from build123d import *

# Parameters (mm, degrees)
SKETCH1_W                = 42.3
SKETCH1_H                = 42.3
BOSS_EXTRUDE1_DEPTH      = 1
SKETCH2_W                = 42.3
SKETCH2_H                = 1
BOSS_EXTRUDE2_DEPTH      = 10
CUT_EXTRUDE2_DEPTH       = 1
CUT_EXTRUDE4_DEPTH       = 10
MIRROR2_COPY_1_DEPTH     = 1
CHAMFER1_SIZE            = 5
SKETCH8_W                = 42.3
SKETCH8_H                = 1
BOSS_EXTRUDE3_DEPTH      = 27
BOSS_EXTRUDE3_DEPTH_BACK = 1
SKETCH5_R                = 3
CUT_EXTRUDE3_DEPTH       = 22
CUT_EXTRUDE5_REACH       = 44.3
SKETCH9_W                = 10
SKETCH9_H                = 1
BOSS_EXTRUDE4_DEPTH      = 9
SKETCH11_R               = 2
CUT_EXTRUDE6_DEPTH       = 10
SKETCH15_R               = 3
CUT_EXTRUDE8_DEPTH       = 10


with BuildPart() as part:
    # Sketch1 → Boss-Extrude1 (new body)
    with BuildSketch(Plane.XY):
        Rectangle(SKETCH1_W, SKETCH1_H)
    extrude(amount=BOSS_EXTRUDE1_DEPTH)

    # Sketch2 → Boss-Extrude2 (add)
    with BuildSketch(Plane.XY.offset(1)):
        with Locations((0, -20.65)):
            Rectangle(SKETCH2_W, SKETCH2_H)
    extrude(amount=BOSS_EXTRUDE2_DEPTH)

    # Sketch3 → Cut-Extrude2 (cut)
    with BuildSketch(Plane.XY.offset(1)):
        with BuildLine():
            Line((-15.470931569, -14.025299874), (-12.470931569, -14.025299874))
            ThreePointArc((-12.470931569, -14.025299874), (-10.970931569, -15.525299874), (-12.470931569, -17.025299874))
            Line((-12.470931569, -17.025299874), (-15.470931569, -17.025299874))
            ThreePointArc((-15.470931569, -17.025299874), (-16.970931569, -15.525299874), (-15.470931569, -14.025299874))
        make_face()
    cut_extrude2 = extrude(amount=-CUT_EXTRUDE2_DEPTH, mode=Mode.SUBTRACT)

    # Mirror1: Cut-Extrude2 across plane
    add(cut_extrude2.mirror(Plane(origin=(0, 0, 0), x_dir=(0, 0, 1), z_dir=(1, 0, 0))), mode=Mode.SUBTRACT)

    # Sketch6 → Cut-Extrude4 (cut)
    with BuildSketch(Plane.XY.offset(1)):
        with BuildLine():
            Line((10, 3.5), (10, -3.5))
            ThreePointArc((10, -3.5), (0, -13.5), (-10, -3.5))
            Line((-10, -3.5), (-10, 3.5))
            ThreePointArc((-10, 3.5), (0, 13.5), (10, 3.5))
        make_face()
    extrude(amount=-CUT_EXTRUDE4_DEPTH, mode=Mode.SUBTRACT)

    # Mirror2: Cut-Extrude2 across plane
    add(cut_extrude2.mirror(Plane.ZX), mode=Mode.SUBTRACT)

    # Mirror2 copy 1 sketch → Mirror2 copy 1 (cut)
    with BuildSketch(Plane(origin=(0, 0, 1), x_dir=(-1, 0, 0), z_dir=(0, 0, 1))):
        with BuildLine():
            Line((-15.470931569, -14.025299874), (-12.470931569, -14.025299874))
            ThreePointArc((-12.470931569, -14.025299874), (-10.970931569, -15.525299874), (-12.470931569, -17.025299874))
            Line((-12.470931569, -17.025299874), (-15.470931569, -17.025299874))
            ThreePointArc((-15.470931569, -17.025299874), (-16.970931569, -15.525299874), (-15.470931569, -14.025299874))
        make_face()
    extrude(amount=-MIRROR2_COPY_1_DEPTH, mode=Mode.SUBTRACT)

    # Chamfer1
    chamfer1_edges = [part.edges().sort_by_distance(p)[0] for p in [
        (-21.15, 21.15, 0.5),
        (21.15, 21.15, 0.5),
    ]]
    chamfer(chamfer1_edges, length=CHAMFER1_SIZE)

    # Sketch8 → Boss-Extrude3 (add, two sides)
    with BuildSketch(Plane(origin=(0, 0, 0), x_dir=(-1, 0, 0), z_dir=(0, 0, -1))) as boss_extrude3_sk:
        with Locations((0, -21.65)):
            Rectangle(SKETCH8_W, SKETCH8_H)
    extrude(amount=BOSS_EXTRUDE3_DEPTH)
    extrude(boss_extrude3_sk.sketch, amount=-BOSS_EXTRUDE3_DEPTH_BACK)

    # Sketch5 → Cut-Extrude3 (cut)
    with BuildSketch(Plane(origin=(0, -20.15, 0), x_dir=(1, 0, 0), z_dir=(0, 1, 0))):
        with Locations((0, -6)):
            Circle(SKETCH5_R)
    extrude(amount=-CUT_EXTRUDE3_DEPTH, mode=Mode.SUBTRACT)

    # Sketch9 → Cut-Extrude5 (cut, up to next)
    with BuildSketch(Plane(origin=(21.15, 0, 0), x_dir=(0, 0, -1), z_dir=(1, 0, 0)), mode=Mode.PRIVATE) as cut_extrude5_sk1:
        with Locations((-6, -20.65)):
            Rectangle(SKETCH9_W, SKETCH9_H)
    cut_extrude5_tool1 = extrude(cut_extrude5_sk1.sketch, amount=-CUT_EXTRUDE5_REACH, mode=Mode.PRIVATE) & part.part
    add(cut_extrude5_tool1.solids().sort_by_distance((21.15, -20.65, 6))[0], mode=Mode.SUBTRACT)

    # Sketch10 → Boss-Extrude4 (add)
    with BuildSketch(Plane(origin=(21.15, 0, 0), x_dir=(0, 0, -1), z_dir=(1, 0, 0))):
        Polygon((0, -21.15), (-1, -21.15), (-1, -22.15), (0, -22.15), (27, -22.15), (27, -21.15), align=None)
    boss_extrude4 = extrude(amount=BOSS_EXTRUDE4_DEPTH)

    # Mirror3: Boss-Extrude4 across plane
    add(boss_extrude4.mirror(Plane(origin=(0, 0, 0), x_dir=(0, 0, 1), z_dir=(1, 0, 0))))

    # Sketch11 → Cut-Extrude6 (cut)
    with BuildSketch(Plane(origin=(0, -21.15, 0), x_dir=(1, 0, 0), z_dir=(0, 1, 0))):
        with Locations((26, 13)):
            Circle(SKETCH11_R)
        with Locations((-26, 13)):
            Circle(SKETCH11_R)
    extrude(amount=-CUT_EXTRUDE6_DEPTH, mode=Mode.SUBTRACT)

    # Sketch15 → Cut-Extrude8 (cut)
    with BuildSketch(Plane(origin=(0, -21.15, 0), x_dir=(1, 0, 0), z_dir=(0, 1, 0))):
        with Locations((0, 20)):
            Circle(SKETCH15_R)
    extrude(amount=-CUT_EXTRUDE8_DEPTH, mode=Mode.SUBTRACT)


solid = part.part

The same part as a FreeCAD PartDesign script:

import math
import FreeCAD as App
import Part
import Sketcher

V = App.Vector
Q = App.Units.Quantity


def edges_at(feature, points):
    """Names of the edges that pass closest to the given points."""
    edges = feature.Shape.Edges
    near = lambda p: min(range(len(edges)), key=lambda i: edges[i].distToShape(Part.Vertex(*p))[0])
    return sorted({f"Edge{near(p) + 1}" for p in points})

doc = App.newDocument("Part")
params = doc.addObject("Spreadsheet::Sheet", "Params")
for row, (alias, value) in enumerate([
    ("sketch1_width", "42.3 mm"),
    ("pad1_length", "1 mm"),
    ("sketch2_height", "1 mm"),
    ("sketch2_width", "42.3 mm"),
    ("pad2_length", "10 mm"),
    ("sketch3_radius", "1.5 mm"),
    ("sketch3_width", "3 mm"),
    ("pocket1_length", "1 mm"),
    ("sketch4_radius", "10 mm"),
    ("sketch4_height", "7 mm"),
    ("pocket2_length", "10 mm"),
    ("sketch5_radius", "1.5 mm"),
    ("sketch5_width", "3 mm"),
    ("pocket3_length", "1 mm"),
    ("chamfer_size", "5 mm"),
    ("sketch6_height", "1 mm"),
    ("sketch6_width", "42.3 mm"),
    ("pad3_length", "27 mm"),
    ("pad3_length2", "1 mm"),
    ("sketch7_diameter", "6 mm"),
    ("pocket4_length", "22 mm"),
    ("sketch8_width", "1 mm"),
    ("sketch8_height", "10 mm"),
    ("sketch9_width", "1 mm"),
    ("sketch9_height", "28 mm"),
    ("pad4_length", "9 mm"),
    ("sketch10_diameter", "4 mm"),
    ("pocket6_length", "10 mm"),
    ("sketch11_diameter", "6 mm"),
    ("pocket7_length", "10 mm"),
], start=1):
    params.set(f"A{row}", alias)
    params.set(f"B{row}", "=" + value)
    params.setAlias(f"B{row}", alias)

body = doc.addObject("PartDesign::Body", "Body")

sketch1 = body.newObject("Sketcher::SketchObject", "Sketch")
sketch1.AttachmentSupport = (doc.getObject("XY_Plane"), [""])
sketch1.MapMode = "FlatFace"
sketch1.addGeometry([
    Part.LineSegment(V(-21.15, 21.15, 0), V(-21.15, -21.15, 0)),
    Part.LineSegment(V(-21.15, -21.15, 0), V(21.15, -21.15, 0)),
    Part.LineSegment(V(21.15, -21.15, 0), V(21.15, 21.15, 0)),
    Part.LineSegment(V(21.15, 21.15, 0), V(-21.15, 21.15, 0)),
], False)
sketch1.addConstraint([
    Sketcher.Constraint("Coincident", 0, 2, 1, 1),
    Sketcher.Constraint("Coincident", 1, 2, 2, 1),
    Sketcher.Constraint("Coincident", 2, 2, 3, 1),
    Sketcher.Constraint("Coincident", 3, 2, 0, 1),
    Sketcher.Constraint("Vertical", 0),
    Sketcher.Constraint("Horizontal", 1),
    Sketcher.Constraint("Vertical", 2),
    Sketcher.Constraint("Horizontal", 3),
    Sketcher.Constraint("Symmetric", 0, 2, 2, 2, -1, 1),
    Sketcher.Constraint("Equal", 3, 0),
    Sketcher.Constraint("DistanceX", 1, 1, 1, 2, Q("42.3 mm")),
])
sketch1.setExpression("Constraints[10]", "Params.sketch1_width")
pad1 = body.newObject("PartDesign::Pad", "Pad")
pad1.Profile = sketch1
pad1.setExpression("Length", "Params.pad1_length")

sketch2 = body.newObject("Sketcher::SketchObject", "Sketch001")
sketch2.AttachmentSupport = (doc.getObject("XY_Plane"), [""])
sketch2.MapMode = "FlatFace"
sketch2.AttachmentOffset = App.Placement(V(0, 0, 1), App.Rotation())
sketch2.addGeometry([
    Part.LineSegment(V(-21.15, -20.15, 0), V(-21.15, -21.15, 0)),
    Part.LineSegment(V(-21.15, -21.15, 0), V(21.15, -21.15, 0)),
    Part.LineSegment(V(21.15, -21.15, 0), V(21.15, -20.15, 0)),
    Part.LineSegment(V(21.15, -20.15, 0), V(-21.15, -20.15, 0)),
], False)
sketch2.addConstraint([
    Sketcher.Constraint("Coincident", 0, 2, 1, 1),
    Sketcher.Constraint("Coincident", 1, 2, 2, 1),
    Sketcher.Constraint("Coincident", 2, 2, 3, 1),
    Sketcher.Constraint("Coincident", 3, 2, 0, 1),
    Sketcher.Constraint("Vertical", 0),
    Sketcher.Constraint("Horizontal", 1),
    Sketcher.Constraint("Vertical", 2),
    Sketcher.Constraint("Horizontal", 3),
    Sketcher.Constraint("DistanceY", 0, 2, 0, 1, Q("1 mm")),
    Sketcher.Constraint("DistanceX", 1, 1, 1, 2, Q("42.3 mm")),
    Sketcher.Constraint("DistanceX", 0, 2, -1, 1, Q("21.15 mm")),
    Sketcher.Constraint("DistanceY", 0, 2, -1, 1, Q("21.15 mm")),
])
sketch2.setExpression("Constraints[8]", "Params.sketch2_height")
sketch2.setExpression("Constraints[9]", "Params.sketch2_width")
pad2 = body.newObject("PartDesign::Pad", "Pad001")
pad2.Profile = sketch2
pad2.setExpression("Length", "Params.pad2_length")

sketch3 = body.newObject("Sketcher::SketchObject", "Sketch002")
sketch3.AttachmentSupport = (doc.getObject("XY_Plane"), [""])
sketch3.MapMode = "FlatFace"
sketch3.AttachmentOffset = App.Placement(V(0, 0, 1), App.Rotation())
sketch3.addGeometry([
    Part.LineSegment(V(-12.470932, -14.0253, 0), V(-15.470932, -14.0253, 0)),
    Part.ArcOfCircle(Part.Circle(V(-15.470932, -15.5253, 0), V(0, 0, 1), 1.5), math.radians(90), math.radians(270)),
    Part.LineSegment(V(-15.470932, -17.0253, 0), V(-12.470932, -17.0253, 0)),
    Part.ArcOfCircle(Part.Circle(V(-12.470932, -15.5253, 0), V(0, 0, 1), 1.5), math.radians(-90), math.radians(90)),
], False)
sketch3.addConstraint([
    Sketcher.Constraint("Tangent", 0, 2, 1, 1),
    Sketcher.Constraint("Tangent", 1, 2, 2, 1),
    Sketcher.Constraint("Tangent", 2, 2, 3, 1),
    Sketcher.Constraint("Tangent", 3, 2, 0, 1),
    Sketcher.Constraint("Horizontal", 0),
    Sketcher.Constraint("Horizontal", 2),
    Sketcher.Constraint("Radius", 1, Q("1.5 mm")),
    Sketcher.Constraint("DistanceX", 0, 2, 0, 1, Q("3 mm")),
    Sketcher.Constraint("DistanceY", 1, 3, -1, 1, Q("15.5253 mm")),
    Sketcher.Constraint("DistanceX", 1, 3, -1, 1, Q("15.470932 mm")),
])
sketch3.setExpression("Constraints[6]", "Params.sketch3_radius")
sketch3.setExpression("Constraints[7]", "Params.sketch3_width")
pocket1 = body.newObject("PartDesign::Pocket", "Pocket")
pocket1.Profile = sketch3
pocket1.setExpression("Length", "Params.pocket1_length")
doc.recompute()

mirrored = body.newObject("PartDesign::Mirrored", "Mirrored")
mirrored.Originals = [pocket1]
mirrored.MirrorPlane = (doc.getObject("YZ_Plane"), [""])
body.Tip = mirrored

sketch4 = body.newObject("Sketcher::SketchObject", "Sketch003")
sketch4.AttachmentSupport = (doc.getObject("XY_Plane"), [""])
sketch4.MapMode = "FlatFace"
sketch4.AttachmentOffset = App.Placement(V(0, 0, 1), App.Rotation())
sketch4.addGeometry([
    Part.LineSegment(V(10, -3.5, 0), V(10, 3.5, 0)),
    Part.ArcOfCircle(Part.Circle(V(0, 3.5, 0), V(0, 0, 1), 10), math.radians(0), math.radians(180)),
    Part.LineSegment(V(-10, 3.5, 0), V(-10, -3.5, 0)),
    Part.ArcOfCircle(Part.Circle(V(0, -3.5, 0), V(0, 0, 1), 10), math.radians(180), math.radians(360)),
], False)
sketch4.addConstraint([
    Sketcher.Constraint("Tangent", 0, 2, 1, 1),
    Sketcher.Constraint("Tangent", 1, 2, 2, 1),
    Sketcher.Constraint("Tangent", 2, 2, 3, 1),
    Sketcher.Constraint("Tangent", 3, 2, 0, 1),
    Sketcher.Constraint("Vertical", 0),
    Sketcher.Constraint("Vertical", 2),
    Sketcher.Constraint("Symmetric", 1, 3, 3, 3, -1, 1),
    Sketcher.Constraint("Radius", 1, Q("10 mm")),
    Sketcher.Constraint("DistanceY", 0, 1, 0, 2, Q("7 mm")),
])
sketch4.setExpression("Constraints[7]", "Params.sketch4_radius")
sketch4.setExpression("Constraints[8]", "Params.sketch4_height")
pocket2 = body.newObject("PartDesign::Pocket", "Pocket001")
pocket2.Profile = sketch4
pocket2.setExpression("Length", "Params.pocket2_length")
doc.recompute()

mirrored2 = body.newObject("PartDesign::Mirrored", "Mirrored001")
mirrored2.Originals = [pocket1]
mirrored2.MirrorPlane = (doc.getObject("XZ_Plane"), [""])
body.Tip = mirrored2

sketch5 = body.newObject("Sketcher::SketchObject", "Sketch004")
sketch5.AttachmentSupport = (doc.getObject("XY_Plane"), [""])
sketch5.MapMode = "FlatFace"
sketch5.AttachmentOffset = App.Placement(V(0, 0, 1), App.Rotation())
sketch5.addGeometry([
    Part.LineSegment(V(12.470932, 14.0253, 0), V(15.470932, 14.0253, 0)),
    Part.ArcOfCircle(Part.Circle(V(15.470932, 15.5253, 0), V(0, 0, 1), 1.5), math.radians(-90), math.radians(90)),
    Part.LineSegment(V(15.470932, 17.0253, 0), V(12.470932, 17.0253, 0)),
    Part.ArcOfCircle(Part.Circle(V(12.470932, 15.5253, 0), V(0, 0, 1), 1.5), math.radians(90), math.radians(270)),
], False)
sketch5.addConstraint([
    Sketcher.Constraint("Tangent", 0, 2, 1, 1),
    Sketcher.Constraint("Tangent", 1, 2, 2, 1),
    Sketcher.Constraint("Tangent", 2, 2, 3, 1),
    Sketcher.Constraint("Tangent", 3, 2, 0, 1),
    Sketcher.Constraint("Horizontal", 0),
    Sketcher.Constraint("Horizontal", 2),
    Sketcher.Constraint("Radius", 1, Q("1.5 mm")),
    Sketcher.Constraint("DistanceX", 0, 1, 0, 2, Q("3 mm")),
    Sketcher.Constraint("DistanceY", -1, 1, 1, 3, Q("15.5253 mm")),
    Sketcher.Constraint("DistanceX", -1, 1, 1, 3, Q("15.470932 mm")),
])
sketch5.setExpression("Constraints[6]", "Params.sketch5_radius")
sketch5.setExpression("Constraints[7]", "Params.sketch5_width")
pocket3 = body.newObject("PartDesign::Pocket", "Pocket002")
pocket3.Profile = sketch5
pocket3.setExpression("Length", "Params.pocket3_length")
doc.recompute()

chamfer = body.newObject("PartDesign::Chamfer", "Chamfer")
chamfer.Base = (pocket3, edges_at(pocket3, [(-21.15, 21.15, 0.5), (21.15, 21.15, 0.5)]))
chamfer.setExpression("Size", "Params.chamfer_size")

sketch6 = body.newObject("Sketcher::SketchObject", "Sketch005")
sketch6.AttachmentSupport = (doc.getObject("XY_Plane"), [""])
sketch6.MapMode = "FlatFace"
sketch6.addGeometry([
    Part.LineSegment(V(21.15, -21.15, 0), V(21.15, -22.15, 0)),
    Part.LineSegment(V(21.15, -22.15, 0), V(-21.15, -22.15, 0)),
    Part.LineSegment(V(-21.15, -22.15, 0), V(-21.15, -21.15, 0)),
    Part.LineSegment(V(-21.15, -21.15, 0), V(21.15, -21.15, 0)),
], False)
sketch6.addConstraint([
    Sketcher.Constraint("Coincident", 0, 2, 1, 1),
    Sketcher.Constraint("Coincident", 1, 2, 2, 1),
    Sketcher.Constraint("Coincident", 2, 2, 3, 1),
    Sketcher.Constraint("Coincident", 3, 2, 0, 1),
    Sketcher.Constraint("Vertical", 0),
    Sketcher.Constraint("Horizontal", 1),
    Sketcher.Constraint("Vertical", 2),
    Sketcher.Constraint("Horizontal", 3),
    Sketcher.Constraint("DistanceY", 0, 2, 0, 1, Q("1 mm")),
    Sketcher.Constraint("DistanceX", 1, 2, 1, 1, Q("42.3 mm")),
    Sketcher.Constraint("DistanceX", -1, 1, 0, 2, Q("21.15 mm")),
    Sketcher.Constraint("DistanceY", 0, 2, -1, 1, Q("22.15 mm")),
])
sketch6.setExpression("Constraints[8]", "Params.sketch6_height")
sketch6.setExpression("Constraints[9]", "Params.sketch6_width")
pad3 = body.newObject("PartDesign::Pad", "Pad002")
pad3.Profile = sketch6
pad3.Type = "TwoLengths"
pad3.setExpression("Length", "Params.pad3_length")
pad3.setExpression("Length2", "Params.pad3_length2")
pad3.Reversed = True

sketch7 = body.newObject("Sketcher::SketchObject", "Sketch006")
sketch7.AttachmentSupport = (doc.getObject("XZ_Plane"), [""])
sketch7.MapMode = "FlatFace"
sketch7.AttachmentOffset = App.Placement(V(0, 0, 20.15), App.Rotation())
sketch7.addGeometry(Part.Circle(V(0, 6, 0), V(0, 0, 1), 3), False)
sketch7.addConstraint([
    Sketcher.Constraint("PointOnObject", 0, 3, -2),
    Sketcher.Constraint("Diameter", 0, Q("6 mm")),
    Sketcher.Constraint("DistanceY", -1, 1, 0, 3, Q("6 mm")),
])
sketch7.setExpression("Constraints[1]", "Params.sketch7_diameter")
pocket4 = body.newObject("PartDesign::Pocket", "Pocket003")
pocket4.Profile = sketch7
pocket4.setExpression("Length", "Params.pocket4_length")
pocket4.Reversed = True

sketch8 = body.newObject("Sketcher::SketchObject", "Sketch007")
sketch8.AttachmentSupport = (doc.getObject("YZ_Plane"), [""])
sketch8.MapMode = "FlatFace"
sketch8.AttachmentOffset = App.Placement(V(0, 0, 21.15), App.Rotation())
sketch8.addGeometry([
    Part.LineSegment(V(-20.15, 11, 0), V(-21.15, 11, 0)),
    Part.LineSegment(V(-21.15, 11, 0), V(-21.15, 1, 0)),
    Part.LineSegment(V(-21.15, 1, 0), V(-20.15, 1, 0)),
    Part.LineSegment(V(-20.15, 1, 0), V(-20.15, 11, 0)),
], False)
sketch8.addConstraint([
    Sketcher.Constraint("Coincident", 0, 2, 1, 1),
    Sketcher.Constraint("Coincident", 1, 2, 2, 1),
    Sketcher.Constraint("Coincident", 2, 2, 3, 1),
    Sketcher.Constraint("Coincident", 3, 2, 0, 1),
    Sketcher.Constraint("Horizontal", 0),
    Sketcher.Constraint("Vertical", 1),
    Sketcher.Constraint("Horizontal", 2),
    Sketcher.Constraint("Vertical", 3),
    Sketcher.Constraint("DistanceX", 0, 2, 0, 1, Q("1 mm")),
    Sketcher.Constraint("DistanceY", 1, 2, 1, 1, Q("10 mm")),
    Sketcher.Constraint("DistanceY", -1, 1, 0, 2, Q("11 mm")),
    Sketcher.Constraint("DistanceX", 0, 2, -1, 1, Q("21.15 mm")),
])
sketch8.setExpression("Constraints[8]", "Params.sketch8_width")
sketch8.setExpression("Constraints[9]", "Params.sketch8_height")
pocket5 = body.newObject("PartDesign::Pocket", "Pocket004")
pocket5.Profile = sketch8
pocket5.Type = "UpToFirst"

sketch9 = body.newObject("Sketcher::SketchObject", "Sketch008")
sketch9.AttachmentSupport = (doc.getObject("YZ_Plane"), [""])
sketch9.MapMode = "FlatFace"
sketch9.AttachmentOffset = App.Placement(V(0, 0, 21.15), App.Rotation())
sketch9.addGeometry([
    Part.LineSegment(V(-21.15, 1, 0), V(-22.15, 1, 0)),
    Part.LineSegment(V(-22.15, 1, 0), V(-22.15, -27, 0)),
    Part.LineSegment(V(-22.15, -27, 0), V(-21.15, -27, 0)),
    Part.LineSegment(V(-21.15, -27, 0), V(-21.15, 1, 0)),
], False)
sketch9.addConstraint([
    Sketcher.Constraint("Coincident", 0, 2, 1, 1),
    Sketcher.Constraint("Coincident", 1, 2, 2, 1),
    Sketcher.Constraint("Coincident", 2, 2, 3, 1),
    Sketcher.Constraint("Coincident", 3, 2, 0, 1),
    Sketcher.Constraint("Horizontal", 0),
    Sketcher.Constraint("Vertical", 1),
    Sketcher.Constraint("Horizontal", 2),
    Sketcher.Constraint("Vertical", 3),
    Sketcher.Constraint("DistanceX", 0, 2, 0, 1, Q("1 mm")),
    Sketcher.Constraint("DistanceY", 1, 2, 1, 1, Q("28 mm")),
    Sketcher.Constraint("DistanceY", -1, 1, 0, 2, Q("1 mm")),
    Sketcher.Constraint("DistanceX", 0, 2, -1, 1, Q("22.15 mm")),
])
sketch9.setExpression("Constraints[8]", "Params.sketch9_width")
sketch9.setExpression("Constraints[9]", "Params.sketch9_height")
pad4 = body.newObject("PartDesign::Pad", "Pad003")
pad4.Profile = sketch9
pad4.setExpression("Length", "Params.pad4_length")
doc.recompute()

mirrored3 = body.newObject("PartDesign::Mirrored", "Mirrored002")
mirrored3.Originals = [pad4]
mirrored3.MirrorPlane = (doc.getObject("YZ_Plane"), [""])
body.Tip = mirrored3

sketch10 = body.newObject("Sketcher::SketchObject", "Sketch009")
sketch10.AttachmentSupport = (doc.getObject("XZ_Plane"), [""])
sketch10.MapMode = "FlatFace"
sketch10.AttachmentOffset = App.Placement(V(0, 0, 21.15), App.Rotation())
sketch10.addGeometry([
    Part.Circle(V(26, -13, 0), V(0, 0, 1), 2),
    Part.Circle(V(-26, -13, 0), V(0, 0, 1), 2),
], False)
sketch10.addConstraint([
    Sketcher.Constraint("Equal", 0, 1),
    Sketcher.Constraint("Symmetric", 0, 3, 1, 3, -2),
    Sketcher.Constraint("Diameter", 0, Q("4 mm")),
    Sketcher.Constraint("DistanceX", -1, 1, 0, 3, Q("26 mm")),
    Sketcher.Constraint("DistanceY", 0, 3, -1, 1, Q("13 mm")),
])
sketch10.setExpression("Constraints[2]", "Params.sketch10_diameter")
pocket6 = body.newObject("PartDesign::Pocket", "Pocket005")
pocket6.Profile = sketch10
pocket6.setExpression("Length", "Params.pocket6_length")
pocket6.Reversed = True

sketch11 = body.newObject("Sketcher::SketchObject", "Sketch010")
sketch11.AttachmentSupport = (doc.getObject("XZ_Plane"), [""])
sketch11.MapMode = "FlatFace"
sketch11.AttachmentOffset = App.Placement(V(0, 0, 21.15), App.Rotation())
sketch11.addGeometry(Part.Circle(V(0, -20, 0), V(0, 0, 1), 3), False)
sketch11.addConstraint([
    Sketcher.Constraint("PointOnObject", 0, 3, -2),
    Sketcher.Constraint("Diameter", 0, Q("6 mm")),
    Sketcher.Constraint("DistanceY", 0, 3, -1, 1, Q("20 mm")),
])
sketch11.setExpression("Constraints[1]", "Params.sketch11_diameter")
pocket7 = body.newObject("PartDesign::Pocket", "Pocket006")
pocket7.Profile = sketch11
pocket7.setExpression("Length", "Params.pocket7_length")
pocket7.Reversed = True

doc.recompute()
